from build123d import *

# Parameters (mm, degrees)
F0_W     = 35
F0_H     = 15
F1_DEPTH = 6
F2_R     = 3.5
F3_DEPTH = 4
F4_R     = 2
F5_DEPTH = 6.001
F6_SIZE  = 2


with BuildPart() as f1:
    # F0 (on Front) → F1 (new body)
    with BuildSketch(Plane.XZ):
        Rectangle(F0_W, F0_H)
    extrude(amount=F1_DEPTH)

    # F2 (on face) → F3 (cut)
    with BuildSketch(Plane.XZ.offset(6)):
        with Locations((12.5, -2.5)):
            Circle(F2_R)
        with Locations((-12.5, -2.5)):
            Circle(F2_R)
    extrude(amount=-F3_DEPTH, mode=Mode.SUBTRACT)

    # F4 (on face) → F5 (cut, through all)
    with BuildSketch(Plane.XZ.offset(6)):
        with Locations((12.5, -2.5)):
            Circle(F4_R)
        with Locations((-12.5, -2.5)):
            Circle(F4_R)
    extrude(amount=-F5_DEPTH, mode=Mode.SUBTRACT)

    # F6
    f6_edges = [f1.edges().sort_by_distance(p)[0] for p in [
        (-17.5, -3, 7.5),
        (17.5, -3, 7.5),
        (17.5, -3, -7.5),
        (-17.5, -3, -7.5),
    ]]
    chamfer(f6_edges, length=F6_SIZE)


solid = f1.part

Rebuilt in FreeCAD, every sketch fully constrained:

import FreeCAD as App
import Part
import Sketcher

V = App.Vector


def edges_at(feature, points):
    """Names of the edges that pass closest to the given points."""
    edges = feature.Shape.Edges
    near = lambda p: min(range(len(edges)), key=lambda i: edges[i].distToShape(Part.Vertex(*p))[0])
    return sorted({f"Edge{near(p) + 1}" for p in points})


def add_polygon(sketch, points):
    """Adds a closed chain of lines whose ends are joined by coincident constraints."""
    first, n = sketch.GeometryCount, len(points)
    for a, b in zip(points, points[1:] + points[:1]):
        sketch.addGeometry(Part.LineSegment(App.Vector(*a, 0), App.Vector(*b, 0)), False)
    for i in range(n):
        sketch.addConstraint(Sketcher.Constraint("Coincident", first + i, 2, first + (i + 1) % n, 1))

doc = App.newDocument("Part")
body = doc.addObject("PartDesign::Body", "Body")

# Sketch on XZ plane
sketch1 = body.newObject("Sketcher::SketchObject", "Sketch")
sketch1.AttachmentSupport = (doc.getObject("XZ_Plane"), [""])
sketch1.MapMode = "FlatFace"
add_polygon(sketch1, [(-18, 8), (-18, -8), (18, -8), (18, 8)])  # lines 0-3
sketch1.addConstraint(Sketcher.Constraint("Vertical", 0))
sketch1.addConstraint(Sketcher.Constraint("Horizontal", 1))
sketch1.addConstraint(Sketcher.Constraint("Vertical", 2))
sketch1.addConstraint(Sketcher.Constraint("Horizontal", 3))
sketch1.addConstraint(Sketcher.Constraint("Symmetric", 0, 2, 2, 2, -1, 1))
sketch1.addConstraint(Sketcher.Constraint("DistanceX", 1, 1, 1, 2, 35.0))
sketch1.addConstraint(Sketcher.Constraint("DistanceY", 0, 2, 0, 1, 15.0))
pad1 = body.newObject("PartDesign::Pad", "Pad")
pad1.Profile = sketch1
pad1.Length = 6

# Sketch on XZ plane
sketch2 = body.newObject("Sketcher::SketchObject", "Sketch001")
sketch2.AttachmentSupport = (doc.getObject("XZ_Plane"), [""])
sketch2.MapMode = "FlatFace"
sketch2.AttachmentOffset = App.Placement(V(0, 0, 6), App.Rotation())
sketch2.addGeometry(Part.Circle(V(12.5, -2.5, 0), V(0, 0, 1), 3.5), False)
sketch2.addGeometry(Part.Circle(V(-12.5, -2.5, 0), V(0, 0, 1), 3.5), False)
sketch2.addConstraint(Sketcher.Constraint("Equal", 0, 1))
sketch2.addConstraint(Sketcher.Constraint("Symmetric", 0, 3, 1, 3, -2))
sketch2.addConstraint(Sketcher.Constraint("Diameter", 0, 7.0))
sketch2.addConstraint(Sketcher.Constraint("DistanceX", 1, 3, 0, 3, 25.0))
sketch2.addConstraint(Sketcher.Constraint("DistanceY", 0, 3, -1, 1, 2.5))
pocket1 = body.newObject("PartDesign::Pocket", "Pocket")
pocket1.Profile = sketch2
pocket1.Length = 4

# Sketch on XZ plane
sketch3 = body.newObject("Sketcher::SketchObject", "Sketch002")
sketch3.AttachmentSupport = (doc.getObject("XZ_Plane"), [""])
sketch3.MapMode = "FlatFace"
sketch3.AttachmentOffset = App.Placement(V(0, 0, 6), App.Rotation())
sketch3.addGeometry(Part.Circle(V(12.5, -2.5, 0), V(0, 0, 1), 2), False)
sketch3.addGeometry(Part.Circle(V(-12.5, -2.5, 0), V(0, 0, 1), 2), False)
sketch3.addConstraint(Sketcher.Constraint("Equal", 0, 1))
sketch3.addConstraint(Sketcher.Constraint("Symmetric", 0, 3, 1, 3, -2))
sketch3.addConstraint(Sketcher.Constraint("Diameter", 0, 4.0))
sketch3.addConstraint(Sketcher.Constraint("DistanceX", 1, 3, 0, 3, 25.0))
sketch3.addConstraint(Sketcher.Constraint("DistanceY", 0, 3, -1, 1, 2.5))
pocket2 = body.newObject("PartDesign::Pocket", "Pocket001")
pocket2.Profile = sketch3
pocket2.Type = "ThroughAll"
doc.recompute()

chamfer = body.newObject("PartDesign::Chamfer", "Chamfer")
chamfer.Base = (pocket2, edges_at(pocket2, [
    (-17.5, -3, 7.5),
    (17.5, -3, 7.5),
    (17.5, -3, -7.5),
    (-17.5, -3, -7.5),
]))
chamfer.Size = 2

doc.recompute()
